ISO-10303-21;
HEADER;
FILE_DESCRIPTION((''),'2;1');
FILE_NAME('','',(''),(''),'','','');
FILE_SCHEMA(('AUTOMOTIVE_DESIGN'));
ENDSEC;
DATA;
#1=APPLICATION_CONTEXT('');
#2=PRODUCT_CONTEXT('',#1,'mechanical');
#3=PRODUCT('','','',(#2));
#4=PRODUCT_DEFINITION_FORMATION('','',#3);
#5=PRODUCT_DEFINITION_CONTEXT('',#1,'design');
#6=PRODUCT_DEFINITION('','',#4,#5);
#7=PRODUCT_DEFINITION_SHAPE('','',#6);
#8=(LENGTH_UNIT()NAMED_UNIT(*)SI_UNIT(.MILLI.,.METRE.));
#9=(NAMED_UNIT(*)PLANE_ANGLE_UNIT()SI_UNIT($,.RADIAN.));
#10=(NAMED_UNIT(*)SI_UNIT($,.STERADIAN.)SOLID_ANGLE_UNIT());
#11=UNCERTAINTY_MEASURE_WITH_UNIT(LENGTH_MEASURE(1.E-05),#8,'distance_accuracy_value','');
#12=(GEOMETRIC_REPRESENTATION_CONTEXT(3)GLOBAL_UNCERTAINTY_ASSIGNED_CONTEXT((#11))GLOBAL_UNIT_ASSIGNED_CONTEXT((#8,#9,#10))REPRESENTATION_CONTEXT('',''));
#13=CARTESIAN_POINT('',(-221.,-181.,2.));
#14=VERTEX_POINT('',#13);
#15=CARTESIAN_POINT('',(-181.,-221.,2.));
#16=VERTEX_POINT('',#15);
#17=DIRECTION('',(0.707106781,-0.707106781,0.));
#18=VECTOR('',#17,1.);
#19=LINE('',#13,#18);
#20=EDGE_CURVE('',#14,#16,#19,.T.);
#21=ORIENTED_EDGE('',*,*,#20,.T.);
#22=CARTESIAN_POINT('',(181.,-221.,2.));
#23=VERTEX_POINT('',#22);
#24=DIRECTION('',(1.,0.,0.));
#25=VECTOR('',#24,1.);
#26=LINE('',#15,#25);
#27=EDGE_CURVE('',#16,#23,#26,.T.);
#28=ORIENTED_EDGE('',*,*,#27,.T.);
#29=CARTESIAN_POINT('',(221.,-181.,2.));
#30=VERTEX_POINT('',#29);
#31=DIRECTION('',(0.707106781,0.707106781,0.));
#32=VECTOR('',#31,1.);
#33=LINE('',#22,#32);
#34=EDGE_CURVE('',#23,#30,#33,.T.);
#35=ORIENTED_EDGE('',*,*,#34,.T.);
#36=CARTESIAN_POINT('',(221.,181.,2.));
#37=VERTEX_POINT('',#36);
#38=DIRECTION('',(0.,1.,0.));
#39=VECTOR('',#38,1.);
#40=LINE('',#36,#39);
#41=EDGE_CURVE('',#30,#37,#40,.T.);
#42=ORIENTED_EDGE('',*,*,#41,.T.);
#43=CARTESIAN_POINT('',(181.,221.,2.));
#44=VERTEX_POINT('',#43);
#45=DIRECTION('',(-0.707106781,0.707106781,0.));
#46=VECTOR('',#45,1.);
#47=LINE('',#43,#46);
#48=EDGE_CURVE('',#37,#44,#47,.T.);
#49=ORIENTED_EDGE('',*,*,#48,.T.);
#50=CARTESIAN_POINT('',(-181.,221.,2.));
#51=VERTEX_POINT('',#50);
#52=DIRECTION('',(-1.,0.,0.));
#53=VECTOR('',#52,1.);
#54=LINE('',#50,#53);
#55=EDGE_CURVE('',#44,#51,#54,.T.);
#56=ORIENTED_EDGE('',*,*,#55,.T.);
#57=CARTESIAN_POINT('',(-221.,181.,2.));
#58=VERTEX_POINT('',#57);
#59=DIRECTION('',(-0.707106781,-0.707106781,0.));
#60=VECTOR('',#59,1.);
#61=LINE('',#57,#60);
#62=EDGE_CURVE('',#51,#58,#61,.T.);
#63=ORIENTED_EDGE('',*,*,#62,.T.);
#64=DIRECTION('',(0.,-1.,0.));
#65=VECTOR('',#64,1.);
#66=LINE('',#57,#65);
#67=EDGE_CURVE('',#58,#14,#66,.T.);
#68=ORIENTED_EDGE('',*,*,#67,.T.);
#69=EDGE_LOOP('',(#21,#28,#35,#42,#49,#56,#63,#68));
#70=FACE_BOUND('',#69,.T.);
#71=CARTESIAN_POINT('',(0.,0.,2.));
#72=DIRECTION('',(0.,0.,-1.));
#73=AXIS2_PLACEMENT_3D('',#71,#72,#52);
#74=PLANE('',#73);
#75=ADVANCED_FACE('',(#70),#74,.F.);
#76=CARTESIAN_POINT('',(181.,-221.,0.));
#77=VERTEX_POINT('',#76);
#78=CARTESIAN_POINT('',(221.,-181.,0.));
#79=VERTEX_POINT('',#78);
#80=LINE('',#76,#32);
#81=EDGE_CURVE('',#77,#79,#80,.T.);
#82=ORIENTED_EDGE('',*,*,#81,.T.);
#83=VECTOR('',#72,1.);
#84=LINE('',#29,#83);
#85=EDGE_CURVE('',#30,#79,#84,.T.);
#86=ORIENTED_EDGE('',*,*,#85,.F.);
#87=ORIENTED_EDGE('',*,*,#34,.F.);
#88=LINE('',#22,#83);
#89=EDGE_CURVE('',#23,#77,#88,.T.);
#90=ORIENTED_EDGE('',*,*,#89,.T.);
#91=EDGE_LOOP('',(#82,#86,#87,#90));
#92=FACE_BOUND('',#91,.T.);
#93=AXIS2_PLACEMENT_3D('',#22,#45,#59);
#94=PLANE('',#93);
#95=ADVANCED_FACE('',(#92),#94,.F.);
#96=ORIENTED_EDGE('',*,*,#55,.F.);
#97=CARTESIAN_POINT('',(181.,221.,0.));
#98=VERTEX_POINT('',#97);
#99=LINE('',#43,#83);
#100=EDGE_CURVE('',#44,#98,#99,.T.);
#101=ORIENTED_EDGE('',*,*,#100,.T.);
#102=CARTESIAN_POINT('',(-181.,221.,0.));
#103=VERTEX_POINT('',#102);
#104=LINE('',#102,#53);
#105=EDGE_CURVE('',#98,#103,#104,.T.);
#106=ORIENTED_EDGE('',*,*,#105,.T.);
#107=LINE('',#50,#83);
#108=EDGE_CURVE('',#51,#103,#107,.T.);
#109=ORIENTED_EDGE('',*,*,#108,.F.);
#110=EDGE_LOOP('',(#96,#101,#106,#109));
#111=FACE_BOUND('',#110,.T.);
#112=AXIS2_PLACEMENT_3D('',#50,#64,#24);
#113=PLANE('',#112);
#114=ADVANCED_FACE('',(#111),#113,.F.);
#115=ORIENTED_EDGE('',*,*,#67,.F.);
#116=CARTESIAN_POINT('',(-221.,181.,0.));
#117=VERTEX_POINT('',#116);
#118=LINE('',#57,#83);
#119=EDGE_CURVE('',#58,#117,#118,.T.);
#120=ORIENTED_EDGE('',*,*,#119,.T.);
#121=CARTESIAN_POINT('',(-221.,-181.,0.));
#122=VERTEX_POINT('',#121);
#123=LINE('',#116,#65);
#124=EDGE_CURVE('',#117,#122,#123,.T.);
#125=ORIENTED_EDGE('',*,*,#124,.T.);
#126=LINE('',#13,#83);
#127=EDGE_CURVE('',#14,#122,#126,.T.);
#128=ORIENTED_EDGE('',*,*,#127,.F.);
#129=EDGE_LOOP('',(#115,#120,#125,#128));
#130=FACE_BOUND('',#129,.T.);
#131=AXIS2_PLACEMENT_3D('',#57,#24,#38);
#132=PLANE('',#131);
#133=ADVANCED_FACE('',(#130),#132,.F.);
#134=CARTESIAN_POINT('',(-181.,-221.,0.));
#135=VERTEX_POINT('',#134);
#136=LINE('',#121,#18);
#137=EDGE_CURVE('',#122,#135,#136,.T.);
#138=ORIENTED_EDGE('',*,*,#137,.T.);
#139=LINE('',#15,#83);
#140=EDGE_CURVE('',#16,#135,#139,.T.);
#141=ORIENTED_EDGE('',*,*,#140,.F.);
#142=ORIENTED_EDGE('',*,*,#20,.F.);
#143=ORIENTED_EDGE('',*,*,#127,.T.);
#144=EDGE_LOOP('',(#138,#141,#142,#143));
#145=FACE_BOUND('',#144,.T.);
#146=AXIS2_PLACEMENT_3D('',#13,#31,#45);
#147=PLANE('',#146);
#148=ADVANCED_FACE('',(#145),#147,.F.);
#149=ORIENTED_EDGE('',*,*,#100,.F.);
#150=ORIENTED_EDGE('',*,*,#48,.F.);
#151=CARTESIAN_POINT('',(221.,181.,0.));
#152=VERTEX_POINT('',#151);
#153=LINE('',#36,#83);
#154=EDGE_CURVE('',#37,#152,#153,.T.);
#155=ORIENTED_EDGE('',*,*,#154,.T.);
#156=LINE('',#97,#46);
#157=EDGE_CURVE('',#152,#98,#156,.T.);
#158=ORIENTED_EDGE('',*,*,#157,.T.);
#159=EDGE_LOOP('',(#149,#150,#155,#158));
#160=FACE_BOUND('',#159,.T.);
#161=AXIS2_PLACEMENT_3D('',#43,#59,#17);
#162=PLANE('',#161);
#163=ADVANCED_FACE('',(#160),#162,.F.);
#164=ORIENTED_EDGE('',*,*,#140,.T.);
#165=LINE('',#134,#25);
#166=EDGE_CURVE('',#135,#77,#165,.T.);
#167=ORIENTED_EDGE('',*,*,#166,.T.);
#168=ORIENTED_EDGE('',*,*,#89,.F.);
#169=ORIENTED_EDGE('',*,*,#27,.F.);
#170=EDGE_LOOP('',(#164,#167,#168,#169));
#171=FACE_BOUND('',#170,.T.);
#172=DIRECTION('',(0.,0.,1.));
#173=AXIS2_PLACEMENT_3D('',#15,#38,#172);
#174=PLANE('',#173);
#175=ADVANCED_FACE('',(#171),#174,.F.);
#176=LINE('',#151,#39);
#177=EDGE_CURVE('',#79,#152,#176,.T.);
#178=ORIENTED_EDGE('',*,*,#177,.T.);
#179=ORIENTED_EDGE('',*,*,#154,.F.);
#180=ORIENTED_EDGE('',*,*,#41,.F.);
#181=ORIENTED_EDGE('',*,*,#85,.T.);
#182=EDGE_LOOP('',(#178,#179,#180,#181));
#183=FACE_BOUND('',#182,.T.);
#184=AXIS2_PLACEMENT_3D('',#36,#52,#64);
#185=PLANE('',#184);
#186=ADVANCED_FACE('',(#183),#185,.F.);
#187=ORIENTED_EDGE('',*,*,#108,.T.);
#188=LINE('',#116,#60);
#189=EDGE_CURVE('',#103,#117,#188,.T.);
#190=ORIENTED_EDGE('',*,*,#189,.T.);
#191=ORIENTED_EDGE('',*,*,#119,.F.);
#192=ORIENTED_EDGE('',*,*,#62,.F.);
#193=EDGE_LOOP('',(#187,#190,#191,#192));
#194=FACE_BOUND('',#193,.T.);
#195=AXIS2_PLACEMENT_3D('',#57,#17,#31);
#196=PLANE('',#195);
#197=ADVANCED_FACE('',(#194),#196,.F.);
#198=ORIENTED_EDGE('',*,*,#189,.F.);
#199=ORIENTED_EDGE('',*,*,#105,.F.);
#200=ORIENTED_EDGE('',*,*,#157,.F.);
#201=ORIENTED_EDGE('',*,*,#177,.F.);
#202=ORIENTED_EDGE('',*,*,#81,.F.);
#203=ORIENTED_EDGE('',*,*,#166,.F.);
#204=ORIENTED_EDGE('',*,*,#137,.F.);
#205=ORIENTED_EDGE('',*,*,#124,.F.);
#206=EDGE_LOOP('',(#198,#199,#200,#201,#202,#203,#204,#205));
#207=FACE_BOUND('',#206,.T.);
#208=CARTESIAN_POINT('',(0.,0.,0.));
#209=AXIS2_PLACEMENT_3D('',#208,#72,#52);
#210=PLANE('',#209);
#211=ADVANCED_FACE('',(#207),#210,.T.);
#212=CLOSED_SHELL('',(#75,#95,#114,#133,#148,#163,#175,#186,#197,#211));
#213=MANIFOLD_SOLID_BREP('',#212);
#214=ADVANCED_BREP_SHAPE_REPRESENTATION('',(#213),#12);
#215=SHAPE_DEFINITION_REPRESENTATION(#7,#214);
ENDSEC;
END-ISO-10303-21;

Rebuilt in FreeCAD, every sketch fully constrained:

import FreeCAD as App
import Part
import Sketcher

V = App.Vector
Q = App.Units.Quantity


def add_polygon(sketch, points):
    """Adds a closed chain of lines whose ends are joined by coincident constraints."""
    first, n = sketch.GeometryCount, len(points)
    for a, b in zip(points, points[1:] + points[:1]):
        sketch.addGeometry(Part.LineSegment(App.Vector(*a, 0), App.Vector(*b, 0)), False)
    for i in range(n):
        sketch.addConstraint(Sketcher.Constraint("Coincident", first + i, 2, first + (i + 1) % n, 1))

doc = App.newDocument("Part")
body = doc.addObject("PartDesign::Body", "Body")

# Sketch on XY plane
sketch1 = body.newObject("Sketcher::SketchObject", "Sketch")
sketch1.AttachmentSupport = (doc.getObject("XY_Plane"), [""])
sketch1.MapMode = "FlatFace"
add_polygon(sketch1, [(-181, 221), (-221, 181), (-221, -181), (-181, -221), (181, -221), (221, -181), (221, 181), (181, 221)])  # lines 0-7
sketch1.addConstraint([
    Sketcher.Constraint("Vertical", 1),
    Sketcher.Constraint("Horizontal", 3),
    Sketcher.Constraint("Vertical", 5),
    Sketcher.Constraint("Horizontal", 7),
    Sketcher.Constraint("Symmetric", 0, 2, 4, 2, -1, 1),
    Sketcher.Constraint("Symmetric", 2, 2, 6, 2, -1, 1),
    Sketcher.Constraint("Perpendicular", 0, 2),
    Sketcher.Constraint("Perpendicular", 2, 4),
    Sketcher.Constraint("Perpendicular", 4, 6),
    Sketcher.Constraint("Horizontal", 1, 2, 4, 2),
    Sketcher.Constraint("Vertical", 3, 2, 6, 2),
    Sketcher.Constraint("Equal", 7, 1),
    Sketcher.Constraint("DistanceX", 3, 1, 3, 2, Q("362 mm")),
    Sketcher.Constraint("DistanceX", 0, 2, -1, 1, Q("221 mm")),
])
pad1 = body.newObject("PartDesign::Pad", "Pad")
pad1.Profile = sketch1
pad1.Length = 2

doc.recompute()
